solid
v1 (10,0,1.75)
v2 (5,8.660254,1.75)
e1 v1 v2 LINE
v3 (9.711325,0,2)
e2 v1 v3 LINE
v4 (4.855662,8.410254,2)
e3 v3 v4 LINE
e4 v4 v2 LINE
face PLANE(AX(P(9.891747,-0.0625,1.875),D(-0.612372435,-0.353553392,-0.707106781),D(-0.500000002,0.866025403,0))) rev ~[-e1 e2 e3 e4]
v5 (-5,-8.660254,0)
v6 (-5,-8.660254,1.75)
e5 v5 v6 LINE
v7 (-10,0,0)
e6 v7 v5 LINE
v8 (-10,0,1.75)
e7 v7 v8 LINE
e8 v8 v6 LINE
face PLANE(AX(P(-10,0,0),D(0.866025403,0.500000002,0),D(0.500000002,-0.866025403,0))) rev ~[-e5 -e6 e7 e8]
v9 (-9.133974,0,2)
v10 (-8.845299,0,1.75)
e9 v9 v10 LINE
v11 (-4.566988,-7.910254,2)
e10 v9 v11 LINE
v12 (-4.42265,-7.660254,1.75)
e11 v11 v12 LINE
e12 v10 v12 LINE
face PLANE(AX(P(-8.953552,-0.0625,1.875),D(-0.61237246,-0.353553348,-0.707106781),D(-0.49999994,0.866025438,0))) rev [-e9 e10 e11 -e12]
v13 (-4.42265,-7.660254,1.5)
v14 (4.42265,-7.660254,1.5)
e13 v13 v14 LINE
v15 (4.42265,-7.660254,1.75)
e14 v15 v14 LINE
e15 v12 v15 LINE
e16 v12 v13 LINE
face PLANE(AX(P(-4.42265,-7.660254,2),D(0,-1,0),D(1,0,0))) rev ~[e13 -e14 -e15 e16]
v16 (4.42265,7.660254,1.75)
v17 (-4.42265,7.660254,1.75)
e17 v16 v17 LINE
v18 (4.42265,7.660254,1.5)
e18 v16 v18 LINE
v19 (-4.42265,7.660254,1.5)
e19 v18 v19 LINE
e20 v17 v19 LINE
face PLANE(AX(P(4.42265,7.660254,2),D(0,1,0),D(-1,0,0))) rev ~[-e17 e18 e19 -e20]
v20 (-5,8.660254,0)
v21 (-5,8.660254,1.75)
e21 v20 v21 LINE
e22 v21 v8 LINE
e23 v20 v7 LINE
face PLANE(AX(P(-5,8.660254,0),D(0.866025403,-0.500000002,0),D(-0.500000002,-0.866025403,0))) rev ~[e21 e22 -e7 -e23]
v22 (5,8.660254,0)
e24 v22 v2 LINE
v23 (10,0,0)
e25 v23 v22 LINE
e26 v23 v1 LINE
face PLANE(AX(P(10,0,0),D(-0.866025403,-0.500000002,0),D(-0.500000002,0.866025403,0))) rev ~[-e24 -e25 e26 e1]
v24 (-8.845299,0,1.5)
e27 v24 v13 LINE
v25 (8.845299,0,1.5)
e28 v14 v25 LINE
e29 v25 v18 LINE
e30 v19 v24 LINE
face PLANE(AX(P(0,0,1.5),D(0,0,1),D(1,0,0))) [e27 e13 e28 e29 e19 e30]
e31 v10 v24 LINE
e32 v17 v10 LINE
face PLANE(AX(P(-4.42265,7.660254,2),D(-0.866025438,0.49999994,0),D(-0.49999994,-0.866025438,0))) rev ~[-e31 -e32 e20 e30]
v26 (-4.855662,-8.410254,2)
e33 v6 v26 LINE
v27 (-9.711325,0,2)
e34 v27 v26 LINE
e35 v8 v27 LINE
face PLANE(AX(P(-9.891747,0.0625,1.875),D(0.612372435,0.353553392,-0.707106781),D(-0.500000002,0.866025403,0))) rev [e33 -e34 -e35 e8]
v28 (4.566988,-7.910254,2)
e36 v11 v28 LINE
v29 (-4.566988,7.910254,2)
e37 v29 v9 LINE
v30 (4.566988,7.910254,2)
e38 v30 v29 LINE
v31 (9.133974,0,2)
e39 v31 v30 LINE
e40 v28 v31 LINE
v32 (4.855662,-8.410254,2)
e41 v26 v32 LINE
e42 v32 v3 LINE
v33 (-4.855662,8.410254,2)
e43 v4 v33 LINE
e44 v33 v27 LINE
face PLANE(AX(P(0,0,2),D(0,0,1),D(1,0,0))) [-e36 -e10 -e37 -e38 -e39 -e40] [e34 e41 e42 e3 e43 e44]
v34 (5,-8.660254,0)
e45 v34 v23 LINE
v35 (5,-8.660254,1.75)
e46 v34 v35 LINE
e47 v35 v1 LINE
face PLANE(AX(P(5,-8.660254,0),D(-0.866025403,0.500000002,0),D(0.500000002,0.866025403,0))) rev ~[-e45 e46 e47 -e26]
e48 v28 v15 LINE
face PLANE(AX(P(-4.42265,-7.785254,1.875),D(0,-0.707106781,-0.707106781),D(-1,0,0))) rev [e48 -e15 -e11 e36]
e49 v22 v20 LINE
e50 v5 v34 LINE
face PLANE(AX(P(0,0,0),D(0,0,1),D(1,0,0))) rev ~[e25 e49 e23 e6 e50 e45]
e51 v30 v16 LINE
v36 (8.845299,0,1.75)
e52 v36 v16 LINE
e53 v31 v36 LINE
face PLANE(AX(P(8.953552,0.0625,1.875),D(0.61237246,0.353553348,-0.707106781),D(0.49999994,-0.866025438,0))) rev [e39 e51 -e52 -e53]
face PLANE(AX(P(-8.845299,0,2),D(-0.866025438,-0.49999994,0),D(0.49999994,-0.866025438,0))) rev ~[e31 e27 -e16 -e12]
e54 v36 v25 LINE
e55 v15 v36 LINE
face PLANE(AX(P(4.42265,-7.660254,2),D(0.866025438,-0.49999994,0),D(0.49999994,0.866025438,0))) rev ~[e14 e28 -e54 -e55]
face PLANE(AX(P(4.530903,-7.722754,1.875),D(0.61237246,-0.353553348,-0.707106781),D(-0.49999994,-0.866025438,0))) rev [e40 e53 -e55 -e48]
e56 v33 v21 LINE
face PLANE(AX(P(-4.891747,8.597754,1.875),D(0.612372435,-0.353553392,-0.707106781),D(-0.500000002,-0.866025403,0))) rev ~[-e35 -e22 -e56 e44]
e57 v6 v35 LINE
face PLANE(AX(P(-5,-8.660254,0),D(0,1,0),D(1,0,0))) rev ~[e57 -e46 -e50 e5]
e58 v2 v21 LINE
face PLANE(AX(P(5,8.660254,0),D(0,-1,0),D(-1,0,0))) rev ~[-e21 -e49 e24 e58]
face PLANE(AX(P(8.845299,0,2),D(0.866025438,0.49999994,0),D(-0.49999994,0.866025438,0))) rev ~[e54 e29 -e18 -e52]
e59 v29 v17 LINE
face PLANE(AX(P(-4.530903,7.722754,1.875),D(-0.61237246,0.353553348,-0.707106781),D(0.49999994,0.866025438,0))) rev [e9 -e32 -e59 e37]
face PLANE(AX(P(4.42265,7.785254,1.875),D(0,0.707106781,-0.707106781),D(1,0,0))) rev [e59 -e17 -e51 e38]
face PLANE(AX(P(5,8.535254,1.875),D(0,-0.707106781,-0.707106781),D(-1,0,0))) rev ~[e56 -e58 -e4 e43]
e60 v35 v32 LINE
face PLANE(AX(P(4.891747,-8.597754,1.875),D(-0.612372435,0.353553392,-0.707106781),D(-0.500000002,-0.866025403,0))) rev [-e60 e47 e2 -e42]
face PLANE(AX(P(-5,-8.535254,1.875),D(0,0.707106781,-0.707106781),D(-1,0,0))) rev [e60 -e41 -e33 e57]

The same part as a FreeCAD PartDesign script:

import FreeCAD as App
import Part
import Sketcher
from FreeCAD import Vector
Q = App.Units.Quantity


def edges_at(feature, points):
    """Names of the edges that pass closest to the given points."""
    edges = feature.Shape.Edges
    near = lambda p: min(range(len(edges)), key=lambda i: edges[i].distToShape(Part.Vertex(*p))[0])
    return sorted({f"Edge{near(p) + 1}" for p in points})


def add_polygon(sketch, points):
    """Adds a closed chain of lines whose ends are joined by coincident constraints."""
    first, n = sketch.GeometryCount, len(points)
    for a, b in zip(points, points[1:] + points[:1]):
        sketch.addGeometry(Part.LineSegment(App.Vector(*a, 0), App.Vector(*b, 0)), False)
    for i in range(n):
        sketch.addConstraint(Sketcher.Constraint("Coincident", first + i, 2, first + (i + 1) % n, 1))

doc = App.newDocument("Part")
params = doc.addObject("Spreadsheet::Sheet", "Params")
for row, (alias, value) in enumerate([
    ("sketch1_width", "10 mm"),
    ("sketch1_length", "10 mm"),
    ("pad1_length", "2 mm"),
    ("pocket1_length", "0.5 mm"),
    ("chamfer_size", "0.25 mm"),
], start=1):
    params.set(f"A{row}", alias)
    params.set(f"B{row}", "=" + value)
    params.setAlias(f"B{row}", alias)

body = doc.addObject("PartDesign::Body", "Body")

# Sketch on XY plane
sketch1 = body.newObject("Sketcher::SketchObject", "Sketch")
sketch1.AttachmentSupport = (doc.getObject("XY_Plane"), [""])
sketch1.MapMode = "FlatFace"
add_polygon(sketch1, [(-5, -9), (5, -9), (10, 0), (5, 9), (-5, 9), (-10, 0)])  # lines 0-5
sketch1.addConstraint([
    Sketcher.Constraint("Horizontal", 0),
    Sketcher.Constraint("Horizontal", 3),
    Sketcher.Constraint("Symmetric", 0, 2, 3, 2, -1, 1),
    Sketcher.Constraint("Symmetric", 1, 2, 4, 2, -1, 1),
    Sketcher.Constraint("PointOnObject", 1, 2, -1),
    Sketcher.Constraint("Parallel", 2, 5),
    Sketcher.Constraint("Vertical", 0, 2, 2, 2),
    Sketcher.Constraint("DistanceX", 0, 1, 0, 2, 10.0),
    Sketcher.Constraint("Angle", 1, Q("60 deg")),
    Sketcher.Constraint("Distance", 1, 10.0),
])
sketch1.setExpression("Constraints[13]", "Params.sketch1_width")
sketch1.setExpression("Constraints[15]", "Params.sketch1_length")
pad1 = body.newObject("PartDesign::Pad", "Pad")
pad1.Profile = sketch1
pad1.setExpression("Length", "Params.pad1_length")

# Sketch on XY plane
sketch2 = body.newObject("Sketcher::SketchObject", "Sketch001")
sketch2.AttachmentSupport = (doc.getObject("XY_Plane"), [""])
sketch2.MapMode = "FlatFace"
sketch2.AttachmentOffset = App.Placement(Vector(0, 0, 2), App.Rotation())
add_polygon(sketch2, [(4, -8), (9, 0), (4, 8), (-4, 8), (-9, 0), (-4, -8)])  # lines 0-5
sketch2.addConstraint([
    Sketcher.Constraint("Horizontal", 2),
    Sketcher.Constraint("Horizontal", 5),
    Sketcher.Constraint("Symmetric", 0, 2, 3, 2, -1, 1),
    Sketcher.Constraint("Symmetric", 1, 2, 4, 2, -1, 1),
    Sketcher.Constraint("PointOnObject", 0, 2, -1),
    Sketcher.Constraint("Parallel", 0, 3),
    Sketcher.Constraint("Vertical", 2, 2, 4, 2),
    Sketcher.Constraint("Angle", 0, Q("60.000004 deg")),
    Sketcher.Constraint("DistanceX", 2, 2, 2, 1, 8.8453),
    Sketcher.Constraint("Distance", 0, 8.845299),
])
pocket1 = body.newObject("PartDesign::Pocket", "Pocket")
pocket1.Profile = sketch2
pocket1.setExpression("Length", "Params.pocket1_length")
doc.recompute()

chamfer = body.newObject("PartDesign::Chamfer", "Chamfer")
chamfer.Base = (pocket1, edges_at(pocket1, [
    (0, -8.66, 2),
    (-7.5, -4.33, 2),
    (7.5, -4.33, 2),
    (-7.5, 4.33, 2),
    (7.5, 4.33, 2),
    (0, 8.66, 2),
    (0, -7.66, 2),
    (-6.634, -3.83, 2),
    (-6.634, 3.83, 2),
    (0, 7.66, 2),
    (6.634, 3.83, 2),
    (6.634, -3.83, 2),
]))
chamfer.setExpression("Size", "Params.chamfer_size")

doc.recompute()
